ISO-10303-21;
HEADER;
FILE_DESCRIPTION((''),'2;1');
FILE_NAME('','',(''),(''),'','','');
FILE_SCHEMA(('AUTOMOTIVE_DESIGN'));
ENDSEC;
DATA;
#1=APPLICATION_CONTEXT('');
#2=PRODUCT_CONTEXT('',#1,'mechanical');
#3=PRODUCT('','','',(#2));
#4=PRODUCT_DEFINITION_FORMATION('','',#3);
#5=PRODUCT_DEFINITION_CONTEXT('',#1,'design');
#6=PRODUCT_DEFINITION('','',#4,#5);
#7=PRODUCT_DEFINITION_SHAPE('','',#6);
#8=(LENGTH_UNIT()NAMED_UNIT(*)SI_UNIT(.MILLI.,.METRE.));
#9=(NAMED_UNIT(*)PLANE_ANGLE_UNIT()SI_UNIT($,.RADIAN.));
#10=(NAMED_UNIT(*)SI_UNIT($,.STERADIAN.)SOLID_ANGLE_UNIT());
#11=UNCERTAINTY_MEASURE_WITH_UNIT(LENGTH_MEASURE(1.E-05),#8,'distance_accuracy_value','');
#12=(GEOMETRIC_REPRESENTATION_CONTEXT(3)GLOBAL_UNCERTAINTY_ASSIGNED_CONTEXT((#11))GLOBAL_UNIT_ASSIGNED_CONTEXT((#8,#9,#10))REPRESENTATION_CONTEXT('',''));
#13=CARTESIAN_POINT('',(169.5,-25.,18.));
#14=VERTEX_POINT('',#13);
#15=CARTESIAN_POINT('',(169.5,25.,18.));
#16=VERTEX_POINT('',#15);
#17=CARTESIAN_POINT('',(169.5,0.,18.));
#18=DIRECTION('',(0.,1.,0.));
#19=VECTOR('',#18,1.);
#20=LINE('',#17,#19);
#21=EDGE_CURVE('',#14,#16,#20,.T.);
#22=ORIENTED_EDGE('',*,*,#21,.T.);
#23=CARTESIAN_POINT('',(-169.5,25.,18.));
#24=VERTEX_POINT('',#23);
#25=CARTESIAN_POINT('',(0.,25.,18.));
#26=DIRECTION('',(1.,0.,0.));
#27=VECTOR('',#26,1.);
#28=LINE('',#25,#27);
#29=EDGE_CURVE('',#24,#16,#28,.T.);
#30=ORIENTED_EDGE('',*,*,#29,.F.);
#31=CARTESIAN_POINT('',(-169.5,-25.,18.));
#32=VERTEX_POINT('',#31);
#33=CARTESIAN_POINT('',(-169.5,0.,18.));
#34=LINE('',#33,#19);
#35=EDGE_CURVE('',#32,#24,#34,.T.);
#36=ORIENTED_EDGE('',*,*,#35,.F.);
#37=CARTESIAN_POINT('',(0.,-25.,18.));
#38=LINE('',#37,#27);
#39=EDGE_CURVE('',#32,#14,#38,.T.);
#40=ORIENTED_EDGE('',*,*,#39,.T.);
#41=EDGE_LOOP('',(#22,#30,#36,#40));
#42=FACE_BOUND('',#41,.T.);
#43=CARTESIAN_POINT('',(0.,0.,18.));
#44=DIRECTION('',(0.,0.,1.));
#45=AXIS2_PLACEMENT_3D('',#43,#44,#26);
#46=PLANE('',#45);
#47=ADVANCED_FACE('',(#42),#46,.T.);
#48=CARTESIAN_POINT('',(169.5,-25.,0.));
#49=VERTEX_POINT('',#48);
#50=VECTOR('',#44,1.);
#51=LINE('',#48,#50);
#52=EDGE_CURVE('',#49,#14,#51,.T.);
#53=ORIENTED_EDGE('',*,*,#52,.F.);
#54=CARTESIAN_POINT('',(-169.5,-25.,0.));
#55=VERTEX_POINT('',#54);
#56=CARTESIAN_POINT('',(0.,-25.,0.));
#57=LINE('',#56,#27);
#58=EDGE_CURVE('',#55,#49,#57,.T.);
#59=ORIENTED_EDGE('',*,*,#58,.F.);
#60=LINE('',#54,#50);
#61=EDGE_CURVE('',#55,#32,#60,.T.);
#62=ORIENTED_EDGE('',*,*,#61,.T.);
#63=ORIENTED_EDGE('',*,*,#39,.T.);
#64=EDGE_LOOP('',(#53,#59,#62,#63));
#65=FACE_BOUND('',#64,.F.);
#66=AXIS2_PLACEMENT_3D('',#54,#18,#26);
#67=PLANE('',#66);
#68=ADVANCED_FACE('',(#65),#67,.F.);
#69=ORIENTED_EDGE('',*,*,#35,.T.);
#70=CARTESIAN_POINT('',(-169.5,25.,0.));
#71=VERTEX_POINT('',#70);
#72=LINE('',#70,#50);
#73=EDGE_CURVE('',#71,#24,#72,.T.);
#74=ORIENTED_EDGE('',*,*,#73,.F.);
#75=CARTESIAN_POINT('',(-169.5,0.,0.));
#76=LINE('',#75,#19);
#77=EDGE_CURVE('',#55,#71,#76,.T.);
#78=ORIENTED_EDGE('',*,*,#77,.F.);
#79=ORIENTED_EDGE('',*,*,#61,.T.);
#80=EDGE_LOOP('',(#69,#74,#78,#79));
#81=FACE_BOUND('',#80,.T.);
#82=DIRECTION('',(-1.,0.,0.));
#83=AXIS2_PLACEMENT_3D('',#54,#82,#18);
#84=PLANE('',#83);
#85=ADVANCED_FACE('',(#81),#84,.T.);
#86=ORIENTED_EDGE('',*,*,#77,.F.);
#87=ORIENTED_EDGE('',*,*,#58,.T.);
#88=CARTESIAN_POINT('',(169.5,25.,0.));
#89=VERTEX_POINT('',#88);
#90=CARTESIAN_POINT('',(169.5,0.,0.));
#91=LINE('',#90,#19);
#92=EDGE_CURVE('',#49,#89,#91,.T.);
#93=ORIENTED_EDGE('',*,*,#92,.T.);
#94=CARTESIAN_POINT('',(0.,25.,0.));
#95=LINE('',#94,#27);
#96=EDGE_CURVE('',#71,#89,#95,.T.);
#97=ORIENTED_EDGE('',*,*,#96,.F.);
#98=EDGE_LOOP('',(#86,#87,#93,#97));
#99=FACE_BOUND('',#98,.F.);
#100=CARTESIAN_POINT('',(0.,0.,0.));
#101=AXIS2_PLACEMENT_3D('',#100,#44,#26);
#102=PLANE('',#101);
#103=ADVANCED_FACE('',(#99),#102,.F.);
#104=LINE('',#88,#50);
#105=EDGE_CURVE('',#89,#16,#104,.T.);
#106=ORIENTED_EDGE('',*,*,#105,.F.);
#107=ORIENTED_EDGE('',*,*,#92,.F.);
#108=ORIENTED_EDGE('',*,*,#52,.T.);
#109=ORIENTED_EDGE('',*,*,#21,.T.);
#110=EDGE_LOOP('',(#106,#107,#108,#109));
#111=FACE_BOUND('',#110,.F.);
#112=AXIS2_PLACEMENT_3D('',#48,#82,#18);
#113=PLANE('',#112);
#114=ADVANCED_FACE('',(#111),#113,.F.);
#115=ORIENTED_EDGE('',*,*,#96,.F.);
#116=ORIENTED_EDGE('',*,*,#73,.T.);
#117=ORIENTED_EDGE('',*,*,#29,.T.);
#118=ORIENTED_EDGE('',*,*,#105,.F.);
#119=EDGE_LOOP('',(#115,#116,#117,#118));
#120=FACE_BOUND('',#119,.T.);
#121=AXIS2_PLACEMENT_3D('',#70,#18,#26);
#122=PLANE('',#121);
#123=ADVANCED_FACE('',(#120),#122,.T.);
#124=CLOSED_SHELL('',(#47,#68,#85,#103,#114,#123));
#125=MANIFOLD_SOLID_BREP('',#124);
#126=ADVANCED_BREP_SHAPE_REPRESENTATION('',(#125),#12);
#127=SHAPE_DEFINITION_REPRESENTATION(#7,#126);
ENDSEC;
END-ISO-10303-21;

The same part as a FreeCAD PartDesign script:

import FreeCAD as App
import Part
import Sketcher
from FreeCAD import Vector
Q = App.Units.Quantity

doc = App.newDocument("Part")
body = doc.addObject("PartDesign::Body", "Body")

# Sketch on XY plane
sketch1 = body.newObject("Sketcher::SketchObject", "Sketch")
sketch1.AttachmentSupport = (doc.getObject("XY_Plane"), [""])
sketch1.MapMode = "FlatFace"
sketch1.addGeometry([
    Part.LineSegment(Vector(-170, 25, 0), Vector(-170, -25, 0)),
    Part.LineSegment(Vector(-170, -25, 0), Vector(170, -25, 0)),
    Part.LineSegment(Vector(170, -25, 0), Vector(170, 25, 0)),
    Part.LineSegment(Vector(170, 25, 0), Vector(-170, 25, 0)),
], False)
sketch1.addConstraint([
    Sketcher.Constraint("Coincident", 0, 2, 1, 1),
    Sketcher.Constraint("Coincident", 1, 2, 2, 1),
    Sketcher.Constraint("Coincident", 2, 2, 3, 1),
    Sketcher.Constraint("Coincident", 3, 2, 0, 1),
    Sketcher.Constraint("Vertical", 0),
    Sketcher.Constraint("Horizontal", 1),
    Sketcher.Constraint("Vertical", 2),
    Sketcher.Constraint("Horizontal", 3),
    Sketcher.Constraint("Symmetric", 0, 2, 2, 2, -1, 1),
    Sketcher.Constraint("DistanceX", 1, 1, 1, 2, Q("339 mm")),
    Sketcher.Constraint("DistanceY", 0, 2, 0, 1, Q("50 mm")),
])
pad1 = body.newObject("PartDesign::Pad", "Pad")
pad1.Profile = sketch1
pad1.Length = 18

doc.recompute()
